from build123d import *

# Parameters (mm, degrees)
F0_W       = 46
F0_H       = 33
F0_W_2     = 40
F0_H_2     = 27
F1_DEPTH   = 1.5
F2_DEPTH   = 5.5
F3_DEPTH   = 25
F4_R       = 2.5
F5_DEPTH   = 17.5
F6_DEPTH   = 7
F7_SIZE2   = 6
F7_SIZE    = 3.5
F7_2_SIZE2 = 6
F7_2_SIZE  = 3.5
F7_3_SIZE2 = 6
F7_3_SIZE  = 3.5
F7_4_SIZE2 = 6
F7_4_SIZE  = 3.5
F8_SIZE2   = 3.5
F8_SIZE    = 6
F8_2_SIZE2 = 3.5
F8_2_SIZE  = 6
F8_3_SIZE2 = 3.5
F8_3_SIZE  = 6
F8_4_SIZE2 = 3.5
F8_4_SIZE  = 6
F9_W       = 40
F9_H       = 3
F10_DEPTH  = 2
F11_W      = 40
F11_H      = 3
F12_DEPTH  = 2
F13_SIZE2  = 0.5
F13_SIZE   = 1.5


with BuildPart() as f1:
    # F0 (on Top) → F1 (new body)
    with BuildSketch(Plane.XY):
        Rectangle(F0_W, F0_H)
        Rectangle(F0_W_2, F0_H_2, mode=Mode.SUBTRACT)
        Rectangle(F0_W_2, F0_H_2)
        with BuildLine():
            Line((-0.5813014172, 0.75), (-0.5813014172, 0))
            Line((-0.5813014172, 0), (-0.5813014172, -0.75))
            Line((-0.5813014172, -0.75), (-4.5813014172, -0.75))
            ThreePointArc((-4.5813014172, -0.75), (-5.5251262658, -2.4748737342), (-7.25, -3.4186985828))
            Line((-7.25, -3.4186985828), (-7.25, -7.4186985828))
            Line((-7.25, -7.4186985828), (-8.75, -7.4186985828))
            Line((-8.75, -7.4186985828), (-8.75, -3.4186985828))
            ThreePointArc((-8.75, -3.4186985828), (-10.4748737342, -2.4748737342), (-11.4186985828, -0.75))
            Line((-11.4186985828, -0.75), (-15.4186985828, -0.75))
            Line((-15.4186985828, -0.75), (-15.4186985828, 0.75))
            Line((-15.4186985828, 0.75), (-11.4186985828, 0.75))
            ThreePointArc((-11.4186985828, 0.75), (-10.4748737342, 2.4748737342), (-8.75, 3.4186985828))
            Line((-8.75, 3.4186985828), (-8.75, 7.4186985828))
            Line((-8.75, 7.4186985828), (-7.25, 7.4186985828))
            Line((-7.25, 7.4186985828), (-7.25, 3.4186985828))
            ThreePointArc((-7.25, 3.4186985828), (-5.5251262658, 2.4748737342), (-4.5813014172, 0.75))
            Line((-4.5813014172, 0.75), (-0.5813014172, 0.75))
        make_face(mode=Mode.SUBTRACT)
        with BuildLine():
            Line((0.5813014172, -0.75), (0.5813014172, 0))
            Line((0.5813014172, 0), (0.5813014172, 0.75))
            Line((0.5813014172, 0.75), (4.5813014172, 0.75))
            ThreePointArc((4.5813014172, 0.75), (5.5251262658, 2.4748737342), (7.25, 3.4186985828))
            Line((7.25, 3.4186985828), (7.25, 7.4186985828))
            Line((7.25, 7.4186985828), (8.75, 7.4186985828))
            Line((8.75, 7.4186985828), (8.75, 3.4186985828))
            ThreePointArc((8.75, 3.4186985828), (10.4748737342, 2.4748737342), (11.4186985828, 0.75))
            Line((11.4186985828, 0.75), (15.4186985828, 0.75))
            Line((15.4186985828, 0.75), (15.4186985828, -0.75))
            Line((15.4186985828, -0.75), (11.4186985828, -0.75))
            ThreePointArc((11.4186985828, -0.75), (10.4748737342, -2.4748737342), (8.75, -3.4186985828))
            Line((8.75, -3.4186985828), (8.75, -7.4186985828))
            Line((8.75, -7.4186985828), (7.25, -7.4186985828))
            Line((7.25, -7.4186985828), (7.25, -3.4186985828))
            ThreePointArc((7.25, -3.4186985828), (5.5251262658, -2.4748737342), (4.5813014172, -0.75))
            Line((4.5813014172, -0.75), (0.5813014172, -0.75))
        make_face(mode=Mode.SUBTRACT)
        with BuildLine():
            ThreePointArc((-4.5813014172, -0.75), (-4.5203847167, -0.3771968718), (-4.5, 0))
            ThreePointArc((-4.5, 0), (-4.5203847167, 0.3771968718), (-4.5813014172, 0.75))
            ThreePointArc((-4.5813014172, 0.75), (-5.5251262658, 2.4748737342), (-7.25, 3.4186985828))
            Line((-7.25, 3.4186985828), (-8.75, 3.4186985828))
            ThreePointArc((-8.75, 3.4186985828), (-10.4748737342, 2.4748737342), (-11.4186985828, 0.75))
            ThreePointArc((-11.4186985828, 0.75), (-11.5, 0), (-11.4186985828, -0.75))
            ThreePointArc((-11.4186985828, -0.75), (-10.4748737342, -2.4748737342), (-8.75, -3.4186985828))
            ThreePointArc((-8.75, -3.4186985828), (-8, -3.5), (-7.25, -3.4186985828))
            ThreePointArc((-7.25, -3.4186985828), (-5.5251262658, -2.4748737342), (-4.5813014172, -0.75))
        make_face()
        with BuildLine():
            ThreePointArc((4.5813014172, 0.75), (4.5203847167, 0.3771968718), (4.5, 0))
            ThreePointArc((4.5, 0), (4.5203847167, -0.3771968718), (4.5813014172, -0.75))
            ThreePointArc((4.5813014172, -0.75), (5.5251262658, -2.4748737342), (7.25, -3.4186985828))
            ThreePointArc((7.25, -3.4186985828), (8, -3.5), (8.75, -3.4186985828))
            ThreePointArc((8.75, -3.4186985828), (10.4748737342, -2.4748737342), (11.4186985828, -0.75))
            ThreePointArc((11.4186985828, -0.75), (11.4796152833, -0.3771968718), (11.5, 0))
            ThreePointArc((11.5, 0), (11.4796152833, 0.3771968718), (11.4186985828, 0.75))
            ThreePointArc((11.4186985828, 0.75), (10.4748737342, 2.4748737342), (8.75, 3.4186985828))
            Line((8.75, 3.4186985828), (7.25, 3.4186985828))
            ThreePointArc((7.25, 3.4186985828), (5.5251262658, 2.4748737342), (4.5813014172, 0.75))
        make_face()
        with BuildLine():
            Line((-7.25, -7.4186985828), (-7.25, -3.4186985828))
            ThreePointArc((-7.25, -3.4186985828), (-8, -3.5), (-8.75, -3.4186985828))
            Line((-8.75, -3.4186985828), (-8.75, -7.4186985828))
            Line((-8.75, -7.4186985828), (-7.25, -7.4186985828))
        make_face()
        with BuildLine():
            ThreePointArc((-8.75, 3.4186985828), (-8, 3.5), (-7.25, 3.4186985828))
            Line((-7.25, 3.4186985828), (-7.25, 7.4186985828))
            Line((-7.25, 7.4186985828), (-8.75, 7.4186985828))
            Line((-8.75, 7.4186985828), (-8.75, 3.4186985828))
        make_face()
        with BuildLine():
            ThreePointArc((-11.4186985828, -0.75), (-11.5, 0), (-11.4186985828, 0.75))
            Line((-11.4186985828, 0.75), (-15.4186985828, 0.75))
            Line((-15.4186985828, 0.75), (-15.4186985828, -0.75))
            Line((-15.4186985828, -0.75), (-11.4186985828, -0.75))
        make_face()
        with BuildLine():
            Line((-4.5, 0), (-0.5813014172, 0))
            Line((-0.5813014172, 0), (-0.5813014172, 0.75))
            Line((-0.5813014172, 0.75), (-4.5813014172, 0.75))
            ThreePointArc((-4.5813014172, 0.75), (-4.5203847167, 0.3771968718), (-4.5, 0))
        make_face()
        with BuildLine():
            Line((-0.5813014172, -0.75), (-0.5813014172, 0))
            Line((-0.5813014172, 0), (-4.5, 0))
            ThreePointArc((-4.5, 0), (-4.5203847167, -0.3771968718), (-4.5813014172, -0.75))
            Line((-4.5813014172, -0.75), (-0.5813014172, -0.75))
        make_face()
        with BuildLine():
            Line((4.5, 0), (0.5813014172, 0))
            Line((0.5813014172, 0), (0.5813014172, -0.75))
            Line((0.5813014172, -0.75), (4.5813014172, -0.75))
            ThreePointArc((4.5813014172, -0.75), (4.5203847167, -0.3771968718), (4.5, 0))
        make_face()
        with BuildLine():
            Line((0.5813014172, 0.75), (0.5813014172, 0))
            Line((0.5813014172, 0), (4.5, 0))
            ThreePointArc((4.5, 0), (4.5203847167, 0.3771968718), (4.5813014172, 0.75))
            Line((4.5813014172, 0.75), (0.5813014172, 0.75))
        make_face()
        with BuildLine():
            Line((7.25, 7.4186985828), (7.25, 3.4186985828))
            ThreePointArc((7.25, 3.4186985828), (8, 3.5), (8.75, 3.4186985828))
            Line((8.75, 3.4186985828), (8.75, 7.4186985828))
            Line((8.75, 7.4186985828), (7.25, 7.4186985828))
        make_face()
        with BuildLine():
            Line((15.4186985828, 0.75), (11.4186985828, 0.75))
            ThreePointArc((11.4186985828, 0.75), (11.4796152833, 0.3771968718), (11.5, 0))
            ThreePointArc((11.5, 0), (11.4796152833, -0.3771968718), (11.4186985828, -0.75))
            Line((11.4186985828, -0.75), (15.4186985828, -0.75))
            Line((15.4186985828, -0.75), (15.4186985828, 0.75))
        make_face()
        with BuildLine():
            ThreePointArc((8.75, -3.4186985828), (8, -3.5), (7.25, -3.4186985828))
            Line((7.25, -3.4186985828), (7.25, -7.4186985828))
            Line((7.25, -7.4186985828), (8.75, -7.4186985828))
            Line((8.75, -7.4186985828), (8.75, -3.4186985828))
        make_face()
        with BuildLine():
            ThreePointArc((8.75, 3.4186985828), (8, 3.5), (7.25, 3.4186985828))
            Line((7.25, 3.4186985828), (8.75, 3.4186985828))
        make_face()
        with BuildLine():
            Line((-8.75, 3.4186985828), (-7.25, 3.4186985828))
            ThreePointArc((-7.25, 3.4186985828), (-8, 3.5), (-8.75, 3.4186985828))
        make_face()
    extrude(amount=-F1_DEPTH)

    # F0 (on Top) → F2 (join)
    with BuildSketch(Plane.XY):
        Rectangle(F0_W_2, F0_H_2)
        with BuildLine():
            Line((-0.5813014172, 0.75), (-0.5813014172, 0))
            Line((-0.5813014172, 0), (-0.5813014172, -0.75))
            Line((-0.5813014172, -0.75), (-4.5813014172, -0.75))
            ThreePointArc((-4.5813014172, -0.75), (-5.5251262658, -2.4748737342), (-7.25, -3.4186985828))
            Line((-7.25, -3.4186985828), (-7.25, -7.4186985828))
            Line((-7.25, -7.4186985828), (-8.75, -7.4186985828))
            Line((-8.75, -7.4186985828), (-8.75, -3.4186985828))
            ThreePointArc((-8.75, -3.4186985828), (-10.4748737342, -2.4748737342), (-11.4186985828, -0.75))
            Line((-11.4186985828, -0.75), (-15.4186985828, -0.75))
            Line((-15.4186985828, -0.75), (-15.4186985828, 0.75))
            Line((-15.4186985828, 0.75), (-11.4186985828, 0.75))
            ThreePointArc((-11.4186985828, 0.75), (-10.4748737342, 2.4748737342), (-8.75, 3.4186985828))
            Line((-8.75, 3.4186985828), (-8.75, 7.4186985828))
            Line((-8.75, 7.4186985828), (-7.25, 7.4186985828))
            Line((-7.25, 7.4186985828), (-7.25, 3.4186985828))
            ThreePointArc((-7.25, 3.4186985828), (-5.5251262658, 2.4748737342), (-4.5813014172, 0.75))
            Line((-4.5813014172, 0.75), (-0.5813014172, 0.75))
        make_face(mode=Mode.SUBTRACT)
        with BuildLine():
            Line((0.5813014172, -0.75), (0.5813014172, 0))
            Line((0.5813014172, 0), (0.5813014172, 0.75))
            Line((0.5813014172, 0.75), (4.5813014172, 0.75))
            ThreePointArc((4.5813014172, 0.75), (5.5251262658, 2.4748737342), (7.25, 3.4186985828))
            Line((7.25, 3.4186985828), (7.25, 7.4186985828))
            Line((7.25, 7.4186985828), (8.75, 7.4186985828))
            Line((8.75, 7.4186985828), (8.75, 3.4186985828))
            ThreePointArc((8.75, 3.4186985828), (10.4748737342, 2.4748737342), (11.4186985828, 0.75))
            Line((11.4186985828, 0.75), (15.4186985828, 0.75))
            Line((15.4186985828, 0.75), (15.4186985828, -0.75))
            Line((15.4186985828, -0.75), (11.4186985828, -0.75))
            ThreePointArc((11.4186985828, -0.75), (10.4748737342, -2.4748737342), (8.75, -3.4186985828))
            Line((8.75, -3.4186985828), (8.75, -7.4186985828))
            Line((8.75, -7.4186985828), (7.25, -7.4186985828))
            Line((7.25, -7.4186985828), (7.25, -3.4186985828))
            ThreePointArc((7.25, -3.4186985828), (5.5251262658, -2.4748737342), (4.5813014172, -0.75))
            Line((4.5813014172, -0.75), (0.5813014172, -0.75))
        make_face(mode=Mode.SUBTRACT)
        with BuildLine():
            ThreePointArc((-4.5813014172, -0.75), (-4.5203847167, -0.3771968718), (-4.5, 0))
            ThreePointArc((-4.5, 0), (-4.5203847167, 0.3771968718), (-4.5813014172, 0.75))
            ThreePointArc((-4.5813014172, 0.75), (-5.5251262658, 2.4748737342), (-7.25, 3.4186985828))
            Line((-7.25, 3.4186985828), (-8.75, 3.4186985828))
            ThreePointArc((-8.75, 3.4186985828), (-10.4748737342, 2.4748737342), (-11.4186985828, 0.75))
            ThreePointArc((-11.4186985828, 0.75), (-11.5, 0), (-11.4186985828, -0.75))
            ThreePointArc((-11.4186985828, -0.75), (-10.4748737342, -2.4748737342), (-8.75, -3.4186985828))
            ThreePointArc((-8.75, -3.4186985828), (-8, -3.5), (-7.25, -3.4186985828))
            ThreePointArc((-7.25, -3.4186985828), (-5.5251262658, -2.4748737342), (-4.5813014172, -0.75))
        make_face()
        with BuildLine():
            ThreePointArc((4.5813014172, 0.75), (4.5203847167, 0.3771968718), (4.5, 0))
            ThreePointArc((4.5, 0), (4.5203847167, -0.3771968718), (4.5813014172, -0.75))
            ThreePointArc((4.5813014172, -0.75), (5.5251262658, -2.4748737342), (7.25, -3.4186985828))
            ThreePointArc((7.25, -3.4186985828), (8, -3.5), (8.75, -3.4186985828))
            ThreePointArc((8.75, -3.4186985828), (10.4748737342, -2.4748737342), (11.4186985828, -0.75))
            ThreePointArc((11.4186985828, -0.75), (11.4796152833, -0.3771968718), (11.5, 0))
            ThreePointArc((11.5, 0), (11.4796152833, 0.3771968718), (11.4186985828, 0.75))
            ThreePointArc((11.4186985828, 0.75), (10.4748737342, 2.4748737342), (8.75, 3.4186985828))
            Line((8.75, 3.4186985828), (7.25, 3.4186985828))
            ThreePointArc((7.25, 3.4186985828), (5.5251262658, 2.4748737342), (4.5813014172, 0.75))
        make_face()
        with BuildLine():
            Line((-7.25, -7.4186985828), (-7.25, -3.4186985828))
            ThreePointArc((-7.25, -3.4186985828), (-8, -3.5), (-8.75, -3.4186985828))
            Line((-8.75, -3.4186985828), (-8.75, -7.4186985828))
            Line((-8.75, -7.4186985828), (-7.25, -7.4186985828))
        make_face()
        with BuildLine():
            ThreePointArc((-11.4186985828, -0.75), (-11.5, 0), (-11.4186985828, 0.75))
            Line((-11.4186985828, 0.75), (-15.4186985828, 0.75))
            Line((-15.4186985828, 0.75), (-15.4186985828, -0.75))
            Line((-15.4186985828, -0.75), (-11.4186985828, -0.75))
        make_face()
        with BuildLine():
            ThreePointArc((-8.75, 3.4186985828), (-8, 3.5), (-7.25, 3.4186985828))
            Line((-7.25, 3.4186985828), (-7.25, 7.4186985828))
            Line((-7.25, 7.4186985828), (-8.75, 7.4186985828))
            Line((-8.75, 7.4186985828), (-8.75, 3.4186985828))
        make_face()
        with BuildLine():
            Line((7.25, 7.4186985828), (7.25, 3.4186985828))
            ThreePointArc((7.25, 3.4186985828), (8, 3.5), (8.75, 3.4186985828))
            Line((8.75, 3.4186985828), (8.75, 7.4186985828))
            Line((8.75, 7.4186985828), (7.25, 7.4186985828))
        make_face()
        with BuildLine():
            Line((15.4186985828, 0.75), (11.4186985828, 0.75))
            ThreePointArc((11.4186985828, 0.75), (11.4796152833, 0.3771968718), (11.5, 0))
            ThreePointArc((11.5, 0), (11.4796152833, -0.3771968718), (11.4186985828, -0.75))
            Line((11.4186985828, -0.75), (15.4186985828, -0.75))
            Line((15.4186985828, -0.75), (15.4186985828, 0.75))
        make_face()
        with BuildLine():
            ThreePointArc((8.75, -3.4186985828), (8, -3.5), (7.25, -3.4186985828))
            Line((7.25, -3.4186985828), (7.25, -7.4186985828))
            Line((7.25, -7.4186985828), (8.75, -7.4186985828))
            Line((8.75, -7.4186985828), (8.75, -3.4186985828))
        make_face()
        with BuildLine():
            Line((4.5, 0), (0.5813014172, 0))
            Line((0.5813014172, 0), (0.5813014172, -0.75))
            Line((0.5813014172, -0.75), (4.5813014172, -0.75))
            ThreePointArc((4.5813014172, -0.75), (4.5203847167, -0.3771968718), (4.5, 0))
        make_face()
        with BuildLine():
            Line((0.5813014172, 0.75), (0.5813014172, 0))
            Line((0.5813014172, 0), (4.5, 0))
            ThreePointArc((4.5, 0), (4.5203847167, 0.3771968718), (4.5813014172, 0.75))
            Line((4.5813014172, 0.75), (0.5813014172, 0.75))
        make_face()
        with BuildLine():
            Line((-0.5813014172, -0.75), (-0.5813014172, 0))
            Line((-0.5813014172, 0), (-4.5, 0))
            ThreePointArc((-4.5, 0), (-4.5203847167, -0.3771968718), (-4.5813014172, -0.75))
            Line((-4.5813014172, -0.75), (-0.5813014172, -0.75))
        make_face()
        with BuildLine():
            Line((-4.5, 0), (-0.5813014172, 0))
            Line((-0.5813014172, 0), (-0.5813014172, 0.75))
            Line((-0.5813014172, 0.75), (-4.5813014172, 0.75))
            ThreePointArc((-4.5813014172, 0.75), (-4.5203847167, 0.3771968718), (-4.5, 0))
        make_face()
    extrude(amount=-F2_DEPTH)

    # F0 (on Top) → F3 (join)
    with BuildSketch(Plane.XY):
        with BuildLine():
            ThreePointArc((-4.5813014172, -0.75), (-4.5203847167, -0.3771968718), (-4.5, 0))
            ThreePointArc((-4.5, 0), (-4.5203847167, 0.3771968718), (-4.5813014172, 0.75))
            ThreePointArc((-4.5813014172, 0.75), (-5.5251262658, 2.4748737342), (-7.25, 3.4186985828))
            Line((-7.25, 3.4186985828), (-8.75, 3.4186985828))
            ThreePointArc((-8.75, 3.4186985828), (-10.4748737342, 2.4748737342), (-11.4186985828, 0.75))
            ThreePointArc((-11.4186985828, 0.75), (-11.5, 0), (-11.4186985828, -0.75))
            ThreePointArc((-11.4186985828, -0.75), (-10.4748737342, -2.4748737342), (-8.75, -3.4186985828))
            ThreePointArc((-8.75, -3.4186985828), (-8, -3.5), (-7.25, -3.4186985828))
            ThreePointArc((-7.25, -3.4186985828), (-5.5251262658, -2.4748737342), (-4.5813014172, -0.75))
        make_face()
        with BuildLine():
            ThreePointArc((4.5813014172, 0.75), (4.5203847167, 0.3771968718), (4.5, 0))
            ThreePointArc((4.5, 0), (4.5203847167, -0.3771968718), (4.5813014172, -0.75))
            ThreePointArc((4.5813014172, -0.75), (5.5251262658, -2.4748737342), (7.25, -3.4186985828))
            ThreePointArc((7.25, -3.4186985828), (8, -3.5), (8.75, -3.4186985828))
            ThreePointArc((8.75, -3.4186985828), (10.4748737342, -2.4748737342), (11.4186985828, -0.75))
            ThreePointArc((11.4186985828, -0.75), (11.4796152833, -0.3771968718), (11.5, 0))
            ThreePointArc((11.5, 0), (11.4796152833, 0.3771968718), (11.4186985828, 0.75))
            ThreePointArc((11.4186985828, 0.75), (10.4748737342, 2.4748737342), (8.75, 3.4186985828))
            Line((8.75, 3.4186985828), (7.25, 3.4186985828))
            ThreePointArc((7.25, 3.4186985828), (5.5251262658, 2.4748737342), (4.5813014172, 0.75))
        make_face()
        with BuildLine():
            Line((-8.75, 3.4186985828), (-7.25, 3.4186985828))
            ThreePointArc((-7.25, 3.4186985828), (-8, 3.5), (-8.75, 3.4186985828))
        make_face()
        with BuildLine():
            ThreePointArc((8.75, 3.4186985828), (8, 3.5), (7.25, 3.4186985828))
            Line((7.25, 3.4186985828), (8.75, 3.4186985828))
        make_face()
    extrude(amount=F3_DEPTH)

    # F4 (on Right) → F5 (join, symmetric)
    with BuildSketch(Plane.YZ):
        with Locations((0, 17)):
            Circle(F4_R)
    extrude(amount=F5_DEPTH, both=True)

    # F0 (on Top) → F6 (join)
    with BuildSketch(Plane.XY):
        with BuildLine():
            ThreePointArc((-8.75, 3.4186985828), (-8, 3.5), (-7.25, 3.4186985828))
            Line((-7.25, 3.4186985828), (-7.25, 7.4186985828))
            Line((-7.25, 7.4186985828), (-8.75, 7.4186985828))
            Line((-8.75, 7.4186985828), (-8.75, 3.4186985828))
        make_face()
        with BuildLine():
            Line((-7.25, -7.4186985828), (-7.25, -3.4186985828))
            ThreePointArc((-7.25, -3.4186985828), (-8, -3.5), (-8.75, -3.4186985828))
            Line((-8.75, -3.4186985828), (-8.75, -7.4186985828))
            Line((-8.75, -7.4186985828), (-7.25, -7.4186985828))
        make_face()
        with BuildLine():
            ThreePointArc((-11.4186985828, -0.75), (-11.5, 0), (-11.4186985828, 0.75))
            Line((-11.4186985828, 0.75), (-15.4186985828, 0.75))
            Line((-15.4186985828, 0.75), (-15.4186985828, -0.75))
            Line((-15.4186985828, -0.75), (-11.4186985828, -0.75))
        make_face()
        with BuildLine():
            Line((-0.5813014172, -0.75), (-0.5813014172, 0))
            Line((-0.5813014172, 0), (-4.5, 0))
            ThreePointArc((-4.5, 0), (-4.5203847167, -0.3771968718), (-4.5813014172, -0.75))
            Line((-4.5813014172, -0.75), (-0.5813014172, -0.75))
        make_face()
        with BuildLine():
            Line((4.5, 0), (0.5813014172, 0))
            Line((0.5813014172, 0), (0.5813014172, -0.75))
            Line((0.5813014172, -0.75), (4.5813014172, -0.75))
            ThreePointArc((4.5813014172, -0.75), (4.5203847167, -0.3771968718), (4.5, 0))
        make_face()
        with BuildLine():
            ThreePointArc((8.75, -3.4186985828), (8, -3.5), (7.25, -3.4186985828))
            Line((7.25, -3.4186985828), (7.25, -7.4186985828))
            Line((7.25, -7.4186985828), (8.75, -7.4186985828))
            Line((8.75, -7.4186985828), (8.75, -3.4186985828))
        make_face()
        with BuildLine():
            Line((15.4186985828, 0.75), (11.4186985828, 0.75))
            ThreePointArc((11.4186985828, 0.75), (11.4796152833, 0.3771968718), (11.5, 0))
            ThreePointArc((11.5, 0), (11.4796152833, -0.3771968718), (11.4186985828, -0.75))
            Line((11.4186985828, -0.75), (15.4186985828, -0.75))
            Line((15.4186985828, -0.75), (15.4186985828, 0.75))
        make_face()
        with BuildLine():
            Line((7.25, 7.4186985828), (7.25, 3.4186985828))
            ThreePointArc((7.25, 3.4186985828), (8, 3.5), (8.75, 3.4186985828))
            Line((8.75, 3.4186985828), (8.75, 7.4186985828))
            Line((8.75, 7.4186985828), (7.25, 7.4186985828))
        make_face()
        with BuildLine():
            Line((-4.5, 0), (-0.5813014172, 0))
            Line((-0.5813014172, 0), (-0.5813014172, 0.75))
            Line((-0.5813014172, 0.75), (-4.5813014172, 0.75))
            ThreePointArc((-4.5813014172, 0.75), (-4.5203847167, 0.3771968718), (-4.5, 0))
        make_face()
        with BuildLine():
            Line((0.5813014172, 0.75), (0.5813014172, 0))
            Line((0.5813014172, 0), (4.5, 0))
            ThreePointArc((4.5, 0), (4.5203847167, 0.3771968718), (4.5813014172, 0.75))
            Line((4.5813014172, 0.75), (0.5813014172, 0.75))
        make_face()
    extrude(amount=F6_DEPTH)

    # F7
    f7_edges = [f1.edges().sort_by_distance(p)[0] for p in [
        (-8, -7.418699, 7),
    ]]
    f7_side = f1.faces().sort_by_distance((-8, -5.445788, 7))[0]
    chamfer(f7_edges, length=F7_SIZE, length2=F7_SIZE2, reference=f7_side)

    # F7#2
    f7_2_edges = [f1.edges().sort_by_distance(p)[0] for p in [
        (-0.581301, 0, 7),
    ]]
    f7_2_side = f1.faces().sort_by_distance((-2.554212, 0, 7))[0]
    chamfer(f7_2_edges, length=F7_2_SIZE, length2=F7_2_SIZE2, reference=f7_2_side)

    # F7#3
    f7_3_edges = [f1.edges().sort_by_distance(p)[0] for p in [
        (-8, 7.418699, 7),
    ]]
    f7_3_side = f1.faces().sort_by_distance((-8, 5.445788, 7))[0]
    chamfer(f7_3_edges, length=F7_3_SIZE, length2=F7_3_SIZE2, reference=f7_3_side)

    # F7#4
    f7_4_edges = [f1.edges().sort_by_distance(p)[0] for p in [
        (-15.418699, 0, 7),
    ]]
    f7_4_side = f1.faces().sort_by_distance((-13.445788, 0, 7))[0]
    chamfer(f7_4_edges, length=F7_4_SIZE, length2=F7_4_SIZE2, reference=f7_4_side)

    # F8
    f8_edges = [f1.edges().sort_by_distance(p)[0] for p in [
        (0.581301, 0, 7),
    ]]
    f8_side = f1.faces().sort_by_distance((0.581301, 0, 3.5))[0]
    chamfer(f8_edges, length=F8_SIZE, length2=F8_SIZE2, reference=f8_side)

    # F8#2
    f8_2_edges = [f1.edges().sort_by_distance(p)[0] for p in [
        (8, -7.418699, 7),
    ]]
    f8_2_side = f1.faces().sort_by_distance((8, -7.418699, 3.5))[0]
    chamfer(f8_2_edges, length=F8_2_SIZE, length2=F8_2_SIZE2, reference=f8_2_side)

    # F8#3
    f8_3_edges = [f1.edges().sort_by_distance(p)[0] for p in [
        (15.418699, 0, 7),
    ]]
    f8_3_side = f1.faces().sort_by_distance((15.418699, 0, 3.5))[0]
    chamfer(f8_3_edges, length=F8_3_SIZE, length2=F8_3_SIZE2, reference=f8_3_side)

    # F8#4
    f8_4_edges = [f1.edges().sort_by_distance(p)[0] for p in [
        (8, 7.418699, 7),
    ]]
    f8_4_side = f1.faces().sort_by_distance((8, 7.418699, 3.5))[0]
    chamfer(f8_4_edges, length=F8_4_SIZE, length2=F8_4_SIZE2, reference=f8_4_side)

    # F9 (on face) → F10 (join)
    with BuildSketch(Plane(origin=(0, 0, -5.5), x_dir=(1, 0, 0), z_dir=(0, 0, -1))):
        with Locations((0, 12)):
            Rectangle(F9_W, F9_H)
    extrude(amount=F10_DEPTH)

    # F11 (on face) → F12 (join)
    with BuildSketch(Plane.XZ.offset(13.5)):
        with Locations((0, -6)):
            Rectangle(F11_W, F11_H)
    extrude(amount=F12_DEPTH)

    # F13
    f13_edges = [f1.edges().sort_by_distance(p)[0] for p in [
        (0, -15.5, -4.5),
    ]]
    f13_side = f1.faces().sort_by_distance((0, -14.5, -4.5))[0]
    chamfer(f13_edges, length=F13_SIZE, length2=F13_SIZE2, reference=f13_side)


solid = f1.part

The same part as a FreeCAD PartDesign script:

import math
import FreeCAD as App
import Part
import Sketcher
from FreeCAD import Vector


def edges_at(feature, points):
    """Names of the edges that pass closest to the given points."""
    edges = feature.Shape.Edges
    near = lambda p: min(range(len(edges)), key=lambda i: edges[i].distToShape(Part.Vertex(*p))[0])
    return sorted({f"Edge{near(p) + 1}" for p in points})


def add_polygon(sketch, points):
    """Adds a closed chain of lines whose ends are joined by coincident constraints."""
    first, n = sketch.GeometryCount, len(points)
    for a, b in zip(points, points[1:] + points[:1]):
        sketch.addGeometry(Part.LineSegment(App.Vector(*a, 0), App.Vector(*b, 0)), False)
    for i in range(n):
        sketch.addConstraint(Sketcher.Constraint("Coincident", first + i, 2, first + (i + 1) % n, 1))

doc = App.newDocument("Part")
body = doc.addObject("PartDesign::Body", "Body")

# Sketch on XY plane
sketch1 = body.newObject("Sketcher::SketchObject", "Sketch")
sketch1.AttachmentSupport = (doc.getObject("XY_Plane"), [""])
sketch1.MapMode = "FlatFace"
add_polygon(sketch1, [(-23, 16.5), (-23, -16.5), (23, -16.5), (23, 16.5)])  # lines 0-3
sketch1.addConstraint([
    Sketcher.Constraint("Vertical", 0),
    Sketcher.Constraint("Horizontal", 1),
    Sketcher.Constraint("Vertical", 2),
    Sketcher.Constraint("Horizontal", 3),
    Sketcher.Constraint("Symmetric", 0, 2, 2, 2, -1, 1),
    Sketcher.Constraint("DistanceX", 1, 1, 1, 2, 46.0),
    Sketcher.Constraint("DistanceY", 0, 2, 0, 1, 33.0),
])
pad1 = body.newObject("PartDesign::Pad", "Pad")
pad1.Profile = sketch1
pad1.Length = 1.5
pad1.Reversed = True

# Sketch on XY plane
sketch2 = body.newObject("Sketcher::SketchObject", "Sketch001")
sketch2.AttachmentSupport = (doc.getObject("XY_Plane"), [""])
sketch2.MapMode = "FlatFace"
add_polygon(sketch2, [(-20, 13.5), (-20, -13.5), (20, -13.5), (20, 13.5)])  # lines 0-3
sketch2.addGeometry(Part.LineSegment(Vector(-7.25, 3.418699, 0), Vector(-8.75, 3.418699, 0)), False)  # 4
sketch2.addGeometry(Part.ArcOfCircle(Part.Circle(Vector(-8, 0, 0), Vector(0, 0, 1), 3.5), math.radians(77.626375), math.radians(102.373625)), False)  # 5
sketch2.addGeometry(Part.LineSegment(Vector(8.75, 3.418699, 0), Vector(7.25, 3.418699, 0)), False)  # 6
sketch2.addGeometry(Part.ArcOfCircle(Part.Circle(Vector(8, 0, 0), Vector(0, 0, 1), 3.5), math.radians(77.626375), math.radians(102.373625)), False)  # 7
sketch2.addConstraint([
    Sketcher.Constraint("Coincident", 4, 1, 5, 1),
    Sketcher.Constraint("Coincident", 5, 2, 4, 2),
    Sketcher.Constraint("Coincident", 6, 1, 7, 1),
    Sketcher.Constraint("Coincident", 7, 2, 6, 2),
    Sketcher.Constraint("Vertical", 0),
    Sketcher.Constraint("Horizontal", 1),
    Sketcher.Constraint("Vertical", 2),
    Sketcher.Constraint("Horizontal", 3),
    Sketcher.Constraint("Horizontal", 4),
    Sketcher.Constraint("Horizontal", 6),
    Sketcher.Constraint("Equal", 5, 7),
    Sketcher.Constraint("Symmetric", 5, 3, 7, 3, -1, 1),
    Sketcher.Constraint("Symmetric", 0, 2, 2, 2, -1, 1),
    Sketcher.Constraint("Symmetric", 5, 2, 6, 1, -2),
    Sketcher.Constraint("Radius", 5, 3.5),
    Sketcher.Constraint("DistanceX", 1, 1, 1, 2, 40.0),
    Sketcher.Constraint("DistanceY", 0, 2, 0, 1, 27.0),
    Sketcher.Constraint("DistanceX", 4, 2, 4, 1, 1.5),
    Sketcher.Constraint("DistanceX", 5, 3, -1, 1, 8.0),
])
pad2 = body.newObject("PartDesign::Pad", "Pad001")
pad2.Profile = sketch2
pad2.Length = 5.5
pad2.Reversed = True

# Sketch on XY plane
sketch3 = body.newObject("Sketcher::SketchObject", "Sketch002")
sketch3.AttachmentSupport = (doc.getObject("XY_Plane"), [""])
sketch3.MapMode = "FlatFace"
sketch3.addGeometry([
    Part.ArcOfCircle(Part.Circle(Vector(-8, 0, 0), Vector(0, 0, 1), 3.5), math.radians(-12.373625), math.radians(0)),  # 0
    Part.ArcOfCircle(Part.Circle(Vector(-8, 0, 0), Vector(0, 0, 1), 3.5), math.radians(0), math.radians(12.373625)),  # 1
    Part.ArcOfCircle(Part.Circle(Vector(-8, 0, 0), Vector(0, 0, 1), 3.5), math.radians(12.373625), math.radians(77.626375)),  # 2
    Part.ArcOfCircle(Part.Circle(Vector(-8, 0, 0), Vector(0, 0, 1), 3.5), math.radians(77.626375), math.radians(102.373625)),  # 3
    Part.ArcOfCircle(Part.Circle(Vector(-8, 0, 0), Vector(0, 0, 1), 3.5), math.radians(102.373625), math.radians(167.626375)),  # 4
    Part.ArcOfCircle(Part.Circle(Vector(-8, 0, 0), Vector(0, 0, 1), 3.5), math.radians(167.626375), math.radians(192.373625)),  # 5
    Part.ArcOfCircle(Part.Circle(Vector(-8, 0, 0), Vector(0, 0, 1), 3.5), math.radians(-167.626375), math.radians(-102.373625)),  # 6
    Part.ArcOfCircle(Part.Circle(Vector(-8, 0, 0), Vector(0, 0, 1), 3.5), math.radians(-102.373625), math.radians(-77.626375)),  # 7
    Part.ArcOfCircle(Part.Circle(Vector(-8, 0, 0), Vector(0, 0, 1), 3.5), math.radians(-77.626375), math.radians(-12.373625)),  # 8
    Part.ArcOfCircle(Part.Circle(Vector(8, 0, 0), Vector(0, 0, 1), 3.5), math.radians(167.626375), math.radians(180)),  # 9
    Part.ArcOfCircle(Part.Circle(Vector(8, 0, 0), Vector(0, 0, 1), 3.5), math.radians(180), math.radians(192.373625)),  # 10
    Part.ArcOfCircle(Part.Circle(Vector(8, 0, 0), Vector(0, 0, 1), 3.5), math.radians(-167.626375), math.radians(-102.373625)),  # 11
    Part.ArcOfCircle(Part.Circle(Vector(8, 0, 0), Vector(0, 0, 1), 3.5), math.radians(-102.373625), math.radians(-77.626375)),  # 12
    Part.ArcOfCircle(Part.Circle(Vector(8, 0, 0), Vector(0, 0, 1), 3.5), math.radians(-77.626375), math.radians(-12.373625)),  # 13
    Part.ArcOfCircle(Part.Circle(Vector(8, 0, 0), Vector(0, 0, 1), 3.5), math.radians(-12.373625), math.radians(0)),  # 14
    Part.ArcOfCircle(Part.Circle(Vector(8, 0, 0), Vector(0, 0, 1), 3.5), math.radians(0), math.radians(12.373625)),  # 15
    Part.ArcOfCircle(Part.Circle(Vector(8, 0, 0), Vector(0, 0, 1), 3.5), math.radians(12.373625), math.radians(77.626375)),  # 16
    Part.ArcOfCircle(Part.Circle(Vector(8, 0, 0), Vector(0, 0, 1), 3.5), math.radians(77.626375), math.radians(102.373625)),  # 17
    Part.ArcOfCircle(Part.Circle(Vector(8, 0, 0), Vector(0, 0, 1), 3.5), math.radians(102.373625), math.radians(167.626375)),  # 18
], False)
sketch3.addConstraint([
    Sketcher.Constraint("Tangent", 0, 2, 1, 1),
    Sketcher.Constraint("Tangent", 1, 2, 2, 1),
    Sketcher.Constraint("Tangent", 2, 2, 3, 1),
    Sketcher.Constraint("Tangent", 3, 2, 4, 1),
    Sketcher.Constraint("Tangent", 4, 2, 5, 1),
    Sketcher.Constraint("Tangent", 5, 2, 6, 1),
    Sketcher.Constraint("Tangent", 6, 2, 7, 1),
    Sketcher.Constraint("Tangent", 7, 2, 8, 1),
    Sketcher.Constraint("Tangent", 8, 2, 0, 1),
    Sketcher.Constraint("Tangent", 9, 2, 10, 1),
    Sketcher.Constraint("Tangent", 10, 2, 11, 1),
    Sketcher.Constraint("Tangent", 11, 2, 12, 1),
    Sketcher.Constraint("Tangent", 12, 2, 13, 1),
    Sketcher.Constraint("Tangent", 13, 2, 14, 1),
    Sketcher.Constraint("Tangent", 14, 2, 15, 1),
    Sketcher.Constraint("Tangent", 15, 2, 16, 1),
    Sketcher.Constraint("Tangent", 16, 2, 17, 1),
    Sketcher.Constraint("Tangent", 17, 2, 18, 1),
    Sketcher.Constraint("Tangent", 18, 2, 9, 1),
    Sketcher.Constraint("Coincident", 2, 3, 0, 3),
    Sketcher.Constraint("Coincident", 4, 3, 0, 3),
    Sketcher.Constraint("Coincident", 6, 3, 0, 3),
    Sketcher.Constraint("Coincident", 11, 3, 9, 3),
    Sketcher.Constraint("Coincident", 13, 3, 9, 3),
    Sketcher.Constraint("Coincident", 15, 3, 9, 3),
    Sketcher.Constraint("Equal", 8, 9),
    Sketcher.Constraint("Equal", 15, 16),
    Sketcher.Constraint("Symmetric", 0, 3, 9, 3, -1, 1),
    Sketcher.Constraint("Symmetric", 8, 2, 10, 2, -2),
    Sketcher.Constraint("PointOnObject", 0, 2, -1),
    Sketcher.Constraint("PointOnObject", 9, 2, -1),
    Sketcher.Constraint("PointOnObject", 14, 2, -1),
    Sketcher.Constraint("Horizontal", 2, 2, 3, 2),
    Sketcher.Constraint("Horizontal", 1, 2, 4, 2),
    Sketcher.Constraint("Horizontal", 6, 2, 7, 2),
    Sketcher.Constraint("Horizontal", 5, 2, 8, 2),
    Sketcher.Constraint("Horizontal", 7, 2, 11, 2),
    Sketcher.Constraint("Horizontal", 11, 2, 12, 2),
    Sketcher.Constraint("Horizontal", 10, 2, 13, 2),
    Sketcher.Constraint("Horizontal", 4, 2, 15, 2),
    Sketcher.Constraint("Horizontal", 3, 2, 16, 2),
    Sketcher.Constraint("Horizontal", 16, 2, 17, 2),
    Sketcher.Constraint("Horizontal", 15, 2, 18, 2),
    Sketcher.Constraint("Vertical", 4, 2, 5, 2),
    Sketcher.Constraint("Vertical", 3, 2, 6, 2),
    Sketcher.Constraint("Radius", 0, 3.5),
    Sketcher.Constraint("DistanceX", 0, 3, -1, 1, 8.0),
    Sketcher.Constraint("DistanceX", 3, 2, 2, 2, 1.5),
    Sketcher.Constraint("DistanceY", 5, 2, 4, 2, 1.5),
])
pad3 = body.newObject("PartDesign::Pad", "Pad002")
pad3.Profile = sketch3
pad3.Length = 25

# Sketch on YZ plane
sketch4 = body.newObject("Sketcher::SketchObject", "Sketch003")
sketch4.AttachmentSupport = (doc.getObject("YZ_Plane"), [""])
sketch4.MapMode = "FlatFace"
sketch4.addGeometry(Part.Circle(Vector(0, 17, 0), Vector(0, 0, 1), 2.5), False)
sketch4.addConstraint([
    Sketcher.Constraint("PointOnObject", 0, 3, -2),
    Sketcher.Constraint("Diameter", 0, 5.0),
    Sketcher.Constraint("DistanceY", -1, 1, 0, 3, 17.0),
])
pad4 = body.newObject("PartDesign::Pad", "Pad003")
pad4.Profile = sketch4
pad4.Length = 35
pad4.Midplane = True

# Sketch on XY plane
sketch5 = body.newObject("Sketcher::SketchObject", "Sketch004")
sketch5.AttachmentSupport = (doc.getObject("XY_Plane"), [""])
sketch5.MapMode = "FlatFace"
sketch5.addGeometry([
    Part.ArcOfCircle(Part.Circle(Vector(-8, 0, 0), Vector(0, 0, 1), 3.5), math.radians(77.626375), math.radians(102.373625)),  # 0
    Part.LineSegment(Vector(-7.25, 3.418699, 0), Vector(-7.25, 7.418699, 0)),  # 1
    Part.LineSegment(Vector(-7.25, 7.418699, 0), Vector(-8.75, 7.418699, 0)),  # 2
    Part.LineSegment(Vector(-8.75, 7.418699, 0), Vector(-8.75, 3.418699, 0)),  # 3
    Part.LineSegment(Vector(-7.25, -7.418699, 0), Vector(-7.25, -3.418699, 0)),  # 4
    Part.ArcOfCircle(Part.Circle(Vector(-8, 0, 0), Vector(0, 0, 1), 3.5), math.radians(-102.373625), math.radians(-77.626375)),  # 5
    Part.LineSegment(Vector(-8.75, -3.418699, 0), Vector(-8.75, -7.418699, 0)),  # 6
    Part.LineSegment(Vector(-8.75, -7.418699, 0), Vector(-7.25, -7.418699, 0)),  # 7
    Part.ArcOfCircle(Part.Circle(Vector(-8, 0, 0), Vector(0, 0, 1), 3.5), math.radians(167.626375), math.radians(192.373625)),  # 8
    Part.LineSegment(Vector(-11.418699, 0.75, 0), Vector(-15.418699, 0.75, 0)),  # 9
    Part.LineSegment(Vector(-15.418699, 0.75, 0), Vector(-15.418699, -0.75, 0)),  # 10
    Part.LineSegment(Vector(-15.418699, -0.75, 0), Vector(-11.418699, -0.75, 0)),  # 11
    Part.LineSegment(Vector(-0.581301, -0.75, 0), Vector(-0.581301, 0.75, 0)),  # 12
    Part.LineSegment(Vector(-0.581301, 0.75, 0), Vector(-4.581301, 0.75, 0)),  # 13
    Part.ArcOfCircle(Part.Circle(Vector(-8, 0, 0), Vector(0, 0, 1), 3.5), math.radians(0), math.radians(12.373625)),  # 14
    Part.ArcOfCircle(Part.Circle(Vector(-8, 0, 0), Vector(0, 0, 1), 3.5), math.radians(-12.373625), math.radians(0)),  # 15
    Part.LineSegment(Vector(-4.581301, -0.75, 0), Vector(-0.581301, -0.75, 0)),  # 16
    Part.LineSegment(Vector(0.581301, -0.75, 0), Vector(4.581301, -0.75, 0)),  # 17
    Part.ArcOfCircle(Part.Circle(Vector(8, 0, 0), Vector(0, 0, 1), 3.5), math.radians(180), math.radians(192.373625)),  # 18
    Part.ArcOfCircle(Part.Circle(Vector(8, 0, 0), Vector(0, 0, 1), 3.5), math.radians(167.626375), math.radians(180)),  # 19
    Part.LineSegment(Vector(4.581301, 0.75, 0), Vector(0.581301, 0.75, 0)),  # 20
    Part.LineSegment(Vector(0.581301, 0.75, 0), Vector(0.581301, -0.75, 0)),  # 21
    Part.ArcOfCircle(Part.Circle(Vector(8, 0, 0), Vector(0, 0, 1), 3.5), math.radians(-102.373625), math.radians(-77.626375)),  # 22
    Part.LineSegment(Vector(7.25, -3.418699, 0), Vector(7.25, -7.418699, 0)),  # 23
    Part.LineSegment(Vector(7.25, -7.418699, 0), Vector(8.75, -7.418699, 0)),  # 24
    Part.LineSegment(Vector(8.75, -7.418699, 0), Vector(8.75, -3.418699, 0)),  # 25
    Part.LineSegment(Vector(15.418699, 0.75, 0), Vector(11.418699, 0.75, 0)),  # 26
    Part.ArcOfCircle(Part.Circle(Vector(8, 0, 0), Vector(0, 0, 1), 3.5), math.radians(0), math.radians(12.373625)),  # 27
    Part.ArcOfCircle(Part.Circle(Vector(8, 0, 0), Vector(0, 0, 1), 3.5), math.radians(-12.373625), math.radians(0)),  # 28
    Part.LineSegment(Vector(11.418699, -0.75, 0), Vector(15.418699, -0.75, 0)),  # 29
    Part.LineSegment(Vector(15.418699, -0.75, 0), Vector(15.418699, 0.75, 0)),  # 30
    Part.LineSegment(Vector(7.25, 7.418699, 0), Vector(7.25, 3.418699, 0)),  # 31
    Part.ArcOfCircle(Part.Circle(Vector(8, 0, 0), Vector(0, 0, 1), 3.5), math.radians(77.626375), math.radians(102.373625)),  # 32
    Part.LineSegment(Vector(8.75, 3.418699, 0), Vector(8.75, 7.418699, 0)),  # 33
    Part.LineSegment(Vector(8.75, 7.418699, 0), Vector(7.25, 7.418699, 0)),  # 34
], False)
sketch5.addConstraint([
    Sketcher.Constraint("Coincident", 0, 1, 1, 1),
    Sketcher.Constraint("Coincident", 1, 2, 2, 1),
    Sketcher.Constraint("Coincident", 2, 2, 3, 1),
    Sketcher.Constraint("Coincident", 3, 2, 0, 2),
    Sketcher.Constraint("Coincident", 4, 2, 5, 2),
    Sketcher.Constraint("Coincident", 5, 1, 6, 1),
    Sketcher.Constraint("Coincident", 6, 2, 7, 1),
    Sketcher.Constraint("Coincident", 7, 2, 4, 1),
    Sketcher.Constraint("Coincident", 8, 1, 9, 1),
    Sketcher.Constraint("Coincident", 9, 2, 10, 1),
    Sketcher.Constraint("Coincident", 10, 2, 11, 1),
    Sketcher.Constraint("Coincident", 11, 2, 8, 2),
    Sketcher.Constraint("Coincident", 12, 2, 13, 1),
    Sketcher.Constraint("Coincident", 13, 2, 14, 2),
    Sketcher.Constraint("Tangent", 14, 1, 15, 2),
    Sketcher.Constraint("Coincident", 15, 1, 16, 1),
    Sketcher.Constraint("Coincident", 16, 2, 12, 1),
    Sketcher.Constraint("Coincident", 17, 2, 18, 2),
    Sketcher.Constraint("Tangent", 18, 1, 19, 2),
    Sketcher.Constraint("Coincident", 19, 1, 20, 1),
    Sketcher.Constraint("Coincident", 20, 2, 21, 1),
    Sketcher.Constraint("Coincident", 21, 2, 17, 1),
    Sketcher.Constraint("Coincident", 22, 1, 23, 1),
    Sketcher.Constraint("Coincident", 23, 2, 24, 1),
    Sketcher.Constraint("Coincident", 24, 2, 25, 1),
    Sketcher.Constraint("Coincident", 25, 2, 22, 2),
    Sketcher.Constraint("Coincident", 26, 2, 27, 2),
    Sketcher.Constraint("Tangent", 27, 1, 28, 2),
    Sketcher.Constraint("Coincident", 28, 1, 29, 1),
    Sketcher.Constraint("Coincident", 29, 2, 30, 1),
    Sketcher.Constraint("Coincident", 30, 2, 26, 1),
    Sketcher.Constraint("Coincident", 31, 2, 32, 2),
    Sketcher.Constraint("Coincident", 32, 1, 33, 1),
    Sketcher.Constraint("Coincident", 33, 2, 34, 1),
    Sketcher.Constraint("Coincident", 34, 2, 31, 1),
    Sketcher.Constraint("Vertical", 1),
    Sketcher.Constraint("Horizontal", 2),
    Sketcher.Constraint("Vertical", 3),
    Sketcher.Constraint("Vertical", 4),
    Sketcher.Constraint("Vertical", 6),
    Sketcher.Constraint("Horizontal", 7),
    Sketcher.Constraint("Horizontal", 9),
    Sketcher.Constraint("Vertical", 10),
    Sketcher.Constraint("Horizontal", 11),
    Sketcher.Constraint("Vertical", 12),
    Sketcher.Constraint("Horizontal", 13),
    Sketcher.Constraint("Horizontal", 16),
    Sketcher.Constraint("Horizontal", 17),
    Sketcher.Constraint("Horizontal", 20),
    Sketcher.Constraint("Vertical", 21),
    Sketcher.Constraint("Vertical", 23),
    Sketcher.Constraint("Horizontal", 24),
    Sketcher.Constraint("Vertical", 25),
    Sketcher.Constraint("Horizontal", 26),
    Sketcher.Constraint("Horizontal", 29),
    Sketcher.Constraint("Vertical", 30),
    Sketcher.Constraint("Vertical", 31),
    Sketcher.Constraint("Vertical", 33),
    Sketcher.Constraint("Horizontal", 34),
    Sketcher.Constraint("Coincident", 5, 3, 0, 3),
    Sketcher.Constraint("Coincident", 8, 3, 0, 3),
    Sketcher.Constraint("Coincident", 14, 3, 0, 3),
    Sketcher.Constraint("Coincident", 22, 3, 18, 3),
    Sketcher.Constraint("Coincident", 27, 3, 18, 3),
    Sketcher.Constraint("Coincident", 32, 3, 18, 3),
    Sketcher.Constraint("Equal", 0, 5),
    Sketcher.Constraint("Equal", 5, 8),
    Sketcher.Constraint("Equal", 8, 14),
    Sketcher.Constraint("Equal", 14, 15),
    Sketcher.Constraint("Equal", 15, 18),
    Sketcher.Constraint("Equal", 18, 19),
    Sketcher.Constraint("Equal", 19, 22),
    Sketcher.Constraint("Equal", 22, 27),
    Sketcher.Constraint("Equal", 27, 28),
    Sketcher.Constraint("Equal", 28, 32),
    Sketcher.Constraint("Symmetric", 0, 3, 18, 3, -1, 1),
    Sketcher.Constraint("Symmetric", 16, 2, 20, 2, -1, 1),
    Sketcher.Constraint("Symmetric", 1, 2, 23, 2, -1, 1),
    Sketcher.Constraint("Symmetric", 9, 2, 29, 2, -1, 1),
    Sketcher.Constraint("Symmetric", 6, 2, 33, 2, -1, 1),
    Sketcher.Constraint("Symmetric", 15, 1, 17, 2, -2),
    Sketcher.Constraint("Symmetric", 7, 2, 23, 2, -2),
    Sketcher.Constraint("PointOnObject", 14, 1, -1),
    Sketcher.Constraint("PointOnObject", 18, 1, -1),
    Sketcher.Constraint("PointOnObject", 27, 1, -1),
    Sketcher.Constraint("Horizontal", 0, 1, 3, 2),
    Sketcher.Constraint("Horizontal", 4, 2, 5, 1),
    Sketcher.Constraint("Horizontal", 9, 2, 12, 2),
    Sketcher.Constraint("Horizontal", 11, 2, 15, 1),
    Sketcher.Constraint("Horizontal", 13, 2, 19, 1),
    Sketcher.Constraint("Horizontal", 22, 1, 25, 2),
    Sketcher.Constraint("Horizontal", 20, 2, 26, 2),
    Sketcher.Constraint("Horizontal", 3, 2, 31, 2),
    Sketcher.Constraint("Equal", 11, 13),
    Sketcher.Constraint("Equal", 29, 1),
    Sketcher.Constraint("Equal", 34, 10),
    Sketcher.Constraint("Radius", 0, 3.5),
    Sketcher.Constraint("DistanceX", 9, 2, 9, 1, 4.0),
    Sketcher.Constraint("DistanceX", 2, 2, 2, 1, 1.5),
    Sketcher.Constraint("DistanceX", 0, 3, -1, 1, 8.0),
])
pad5 = body.newObject("PartDesign::Pad", "Pad004")
pad5.Profile = sketch5
pad5.Length = 7
doc.recompute()

chamfer = body.newObject("PartDesign::Chamfer", "Chamfer")
chamfer.Base = (pad5, edges_at(pad5, [(-8, -7.419, 7)]))
chamfer.ChamferType = "Two distances"
chamfer.Size = 3.5
chamfer.Size2 = 6
chamfer.FlipDirection = True
doc.recompute()

chamfer2 = body.newObject("PartDesign::Chamfer", "Chamfer001")
chamfer2.Base = (chamfer, edges_at(chamfer, [(-0.581, 0, 7)]))
chamfer2.ChamferType = "Two distances"
chamfer2.Size = 3.5
chamfer2.Size2 = 6
chamfer2.FlipDirection = True
doc.recompute()

chamfer3 = body.newObject("PartDesign::Chamfer", "Chamfer002")
chamfer3.Base = (chamfer2, edges_at(chamfer2, [(-8, 7.419, 7)]))
chamfer3.ChamferType = "Two distances"
chamfer3.Size = 3.5
chamfer3.Size2 = 6
chamfer3.FlipDirection = True
doc.recompute()

chamfer4 = body.newObject("PartDesign::Chamfer", "Chamfer003")
chamfer4.Base = (chamfer3, edges_at(chamfer3, [(-15.419, 0, 7)]))
chamfer4.ChamferType = "Two distances"
chamfer4.Size = 3.5
chamfer4.Size2 = 6
chamfer4.FlipDirection = True
doc.recompute()

chamfer5 = body.newObject("PartDesign::Chamfer", "Chamfer004")
chamfer5.Base = (chamfer4, edges_at(chamfer4, [(0.581, 0, 7)]))
chamfer5.ChamferType = "Two distances"
chamfer5.Size = 6
chamfer5.Size2 = 3.5
doc.recompute()

chamfer6 = body.newObject("PartDesign::Chamfer", "Chamfer005")
chamfer6.Base = (chamfer5, edges_at(chamfer5, [(8, -7.419, 7)]))
chamfer6.ChamferType = "Two distances"
chamfer6.Size = 6
chamfer6.Size2 = 3.5
doc.recompute()

chamfer7 = body.newObject("PartDesign::Chamfer", "Chamfer006")
chamfer7.Base = (chamfer6, edges_at(chamfer6, [(15.419, 0, 7)]))
chamfer7.ChamferType = "Two distances"
chamfer7.Size = 6
chamfer7.Size2 = 3.5
doc.recompute()

chamfer8 = body.newObject("PartDesign::Chamfer", "Chamfer007")
chamfer8.Base = (chamfer7, edges_at(chamfer7, [(8, 7.419, 7)]))
chamfer8.ChamferType = "Two distances"
chamfer8.Size = 6
chamfer8.Size2 = 3.5

# Sketch on XY plane
sketch6 = body.newObject("Sketcher::SketchObject", "Sketch005")
sketch6.AttachmentSupport = (doc.getObject("XY_Plane"), [""])
sketch6.MapMode = "FlatFace"
sketch6.AttachmentOffset = App.Placement(Vector(0, 0, -5.5), App.Rotation())
add_polygon(sketch6, [(-20, -13.5), (-20, -10.5), (20, -10.5), (20, -13.5)])  # lines 0-3
sketch6.addConstraint([
    Sketcher.Constraint("Vertical", 0),
    Sketcher.Constraint("Horizontal", 1),
    Sketcher.Constraint("Vertical", 2),
    Sketcher.Constraint("Horizontal", 3),
    Sketcher.Constraint("DistanceX", 1, 1, 1, 2, 40.0),
    Sketcher.Constraint("DistanceY", 0, 1, 0, 2, 3.0),
    Sketcher.Constraint("DistanceX", 0, 2, -1, 1, 20.0),
    Sketcher.Constraint("DistanceY", 0, 2, -1, 1, 10.5),
])
pad6 = body.newObject("PartDesign::Pad", "Pad005")
pad6.Profile = sketch6
pad6.Length = 2
pad6.Reversed = True

# Sketch on XZ plane
sketch7 = body.newObject("Sketcher::SketchObject", "Sketch006")
sketch7.AttachmentSupport = (doc.getObject("XZ_Plane"), [""])
sketch7.MapMode = "FlatFace"
sketch7.AttachmentOffset = App.Placement(Vector(0, 0, 13.5), App.Rotation())
add_polygon(sketch7, [(-20, -4.5), (-20, -7.5), (20, -7.5), (20, -4.5)])  # lines 0-3
sketch7.addConstraint([
    Sketcher.Constraint("Vertical", 0),
    Sketcher.Constraint("Horizontal", 1),
    Sketcher.Constraint("Vertical", 2),
    Sketcher.Constraint("Horizontal", 3),
    Sketcher.Constraint("DistanceX", 1, 1, 1, 2, 40.0),
    Sketcher.Constraint("DistanceY", 0, 2, 0, 1, 3.0),
    Sketcher.Constraint("DistanceX", 0, 2, -1, 1, 20.0),
    Sketcher.Constraint("DistanceY", 0, 2, -1, 1, 7.5),
])
pad7 = body.newObject("PartDesign::Pad", "Pad006")
pad7.Profile = sketch7
pad7.Length = 2
doc.recompute()

chamfer9 = body.newObject("PartDesign::Chamfer", "Chamfer008")
chamfer9.Base = (pad7, edges_at(pad7, [(0, -15.5, -4.5)]))
chamfer9.ChamferType = "Two distances"
chamfer9.Size = 1.5
chamfer9.Size2 = 0.5

doc.recompute()
